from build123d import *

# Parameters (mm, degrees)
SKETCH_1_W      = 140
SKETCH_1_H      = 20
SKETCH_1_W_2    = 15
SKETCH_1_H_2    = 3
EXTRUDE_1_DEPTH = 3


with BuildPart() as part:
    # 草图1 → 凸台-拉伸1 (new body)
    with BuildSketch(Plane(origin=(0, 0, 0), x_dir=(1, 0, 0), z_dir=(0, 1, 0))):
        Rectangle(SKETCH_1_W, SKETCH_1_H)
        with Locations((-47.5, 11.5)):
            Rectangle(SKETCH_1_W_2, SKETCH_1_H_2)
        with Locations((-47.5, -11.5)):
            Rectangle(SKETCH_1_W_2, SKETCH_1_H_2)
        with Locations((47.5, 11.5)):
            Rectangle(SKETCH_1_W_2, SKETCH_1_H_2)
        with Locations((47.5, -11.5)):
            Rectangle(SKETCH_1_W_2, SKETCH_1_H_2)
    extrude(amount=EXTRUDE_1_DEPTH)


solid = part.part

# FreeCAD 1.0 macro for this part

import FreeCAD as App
import Part
import Sketcher
from FreeCAD import Vector


def add_polygon(sketch, points):
    """Adds a closed chain of lines whose ends are joined by coincident constraints."""
    first, n = sketch.GeometryCount, len(points)
    for a, b in zip(points, points[1:] + points[:1]):
        sketch.addGeometry(Part.LineSegment(App.Vector(*a, 0), App.Vector(*b, 0)), False)
    for i in range(n):
        sketch.addConstraint(Sketcher.Constraint("Coincident", first + i, 2, first + (i + 1) % n, 1))

doc = App.newDocument("Part")
params = doc.addObject("Spreadsheet::Sheet", "Params")
for row, (alias, value) in enumerate([
    ("sketch1_width", "15 mm"),
    ("sketch1_width2", "80 mm"),
    ("sketch1_height", "20 mm"),
    ("sketch1_height2", "3 mm"),
    ("pad1_length", "3 mm"),
], start=1):
    params.set(f"A{row}", alias)
    params.set(f"B{row}", "=" + value)
    params.setAlias(f"B{row}", alias)

body = doc.addObject("PartDesign::Body", "Body")

# Sketch on XZ plane
sketch1 = body.newObject("Sketcher::SketchObject", "Sketch")
sketch1.AttachmentSupport = (doc.getObject("XZ_Plane"), [""])
sketch1.MapMode = "FlatFace"
add_polygon(sketch1, [(-70, -10), (-70, 10), (-55, 10), (-55, 13), (-40, 13), (-40, 10), (40, 10), (40, 13), (55, 13), (55, 10), (70, 10), (70, -10), (55, -10), (55, -13), (40, -13), (40, -10), (-40, -10), (-40, -13), (-55, -13), (-55, -10)])  # lines 0-19
sketch1.addConstraint(Sketcher.Constraint("Vertical", 0))
sketch1.addConstraint(Sketcher.Constraint("Horizontal", 1))
sketch1.addConstraint(Sketcher.Constraint("Vertical", 2))
sketch1.addConstraint(Sketcher.Constraint("Horizontal", 3))
sketch1.addConstraint(Sketcher.Constraint("Vertical", 4))
sketch1.addConstraint(Sketcher.Constraint("Horizontal", 5))
sketch1.addConstraint(Sketcher.Constraint("Vertical", 6))
sketch1.addConstraint(Sketcher.Constraint("Horizontal", 7))
sketch1.addConstraint(Sketcher.Constraint("Vertical", 8))
sketch1.addConstraint(Sketcher.Constraint("Horizontal", 9))
sketch1.addConstraint(Sketcher.Constraint("Vertical", 10))
sketch1.addConstraint(Sketcher.Constraint("Horizontal", 11))
sketch1.addConstraint(Sketcher.Constraint("Vertical", 12))
sketch1.addConstraint(Sketcher.Constraint("Horizontal", 13))
sketch1.addConstraint(Sketcher.Constraint("Vertical", 14))
sketch1.addConstraint(Sketcher.Constraint("Horizontal", 15))
sketch1.addConstraint(Sketcher.Constraint("Vertical", 16))
sketch1.addConstraint(Sketcher.Constraint("Horizontal", 17))
sketch1.addConstraint(Sketcher.Constraint("Vertical", 18))
sketch1.addConstraint(Sketcher.Constraint("Horizontal", 19))
sketch1.addConstraint(Sketcher.Constraint("Symmetric", 0, 2, 10, 2, -1, 1))
sketch1.addConstraint(Sketcher.Constraint("Symmetric", 2, 2, 12, 2, -1, 1))
sketch1.addConstraint(Sketcher.Constraint("Symmetric", 4, 2, 14, 2, -1, 1))
sketch1.addConstraint(Sketcher.Constraint("Symmetric", 6, 2, 16, 2, -1, 1))
sketch1.addConstraint(Sketcher.Constraint("Symmetric", 8, 2, 18, 2, -1, 1))
sketch1.addConstraint(Sketcher.Constraint("Symmetric", 3, 2, 6, 2, -2))
sketch1.addConstraint(Sketcher.Constraint("Symmetric", 1, 2, 8, 2, -2))
sketch1.addConstraint(Sketcher.Constraint("Horizontal", 1, 2, 4, 2))
sketch1.addConstraint(Sketcher.Constraint("Equal", 1, 3))
sketch1.addConstraint(Sketcher.Constraint("DistanceX", 1, 1, 1, 2, 15.0))
sketch1.addConstraint(Sketcher.Constraint("DistanceX", 5, 1, 5, 2, 80.0))
sketch1.addConstraint(Sketcher.Constraint("DistanceY", 0, 1, 0, 2, 20.0))
sketch1.addConstraint(Sketcher.Constraint("DistanceY", 2, 1, 2, 2, 3.0))
sketch1.setExpression("Constraints[49]", "Params.sketch1_width")
sketch1.setExpression("Constraints[50]", "Params.sketch1_width2")
sketch1.setExpression("Constraints[51]", "Params.sketch1_height")
sketch1.setExpression("Constraints[52]", "Params.sketch1_height2")
pad1 = body.newObject("PartDesign::Pad", "Pad")
pad1.Profile = sketch1
pad1.setExpression("Length", "Params.pad1_length")
pad1.Reversed = True

doc.recompute()
